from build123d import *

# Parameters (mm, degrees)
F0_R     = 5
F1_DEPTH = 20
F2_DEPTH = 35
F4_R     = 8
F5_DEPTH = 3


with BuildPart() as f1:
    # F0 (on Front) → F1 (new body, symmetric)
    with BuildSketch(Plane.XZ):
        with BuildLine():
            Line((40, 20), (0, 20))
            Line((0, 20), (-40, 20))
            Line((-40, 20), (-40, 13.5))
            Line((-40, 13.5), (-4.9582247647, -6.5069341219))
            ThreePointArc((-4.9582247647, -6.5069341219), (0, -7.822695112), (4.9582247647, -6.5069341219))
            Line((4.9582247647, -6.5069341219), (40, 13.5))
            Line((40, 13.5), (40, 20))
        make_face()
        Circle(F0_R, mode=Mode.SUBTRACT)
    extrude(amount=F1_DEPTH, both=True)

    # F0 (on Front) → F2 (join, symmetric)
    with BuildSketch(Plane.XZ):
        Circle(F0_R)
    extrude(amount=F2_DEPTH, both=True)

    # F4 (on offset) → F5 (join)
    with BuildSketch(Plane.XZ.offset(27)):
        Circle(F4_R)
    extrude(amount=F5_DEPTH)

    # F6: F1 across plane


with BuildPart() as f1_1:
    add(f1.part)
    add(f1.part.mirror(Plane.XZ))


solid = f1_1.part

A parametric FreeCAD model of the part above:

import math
import FreeCAD as App
import Part
import Sketcher

V = App.Vector
Q = App.Units.Quantity

doc = App.newDocument("Part")
body = doc.addObject("PartDesign::Body", "Body")

sketch1 = body.newObject("Sketcher::SketchObject", "Sketch")
sketch1.AttachmentSupport = (doc.getObject("XZ_Plane"), [""])
sketch1.MapMode = "FlatFace"
sketch1.addGeometry(Part.LineSegment(V(40, 20, 0), V(-40, 20, 0)), False)
sketch1.addGeometry(Part.LineSegment(V(-40, 20, 0), V(-40, 13.5, 0)), False)
sketch1.addGeometry(Part.LineSegment(V(-40, 13.5, 0), V(-4.958225, -6.506934, 0)), False)
sketch1.addGeometry(Part.ArcOfCircle(Part.Circle(V(0, 2.177305, 0), V(0, 0, 1), 10), math.radians(-119.724), math.radians(-60.276)), False)
sketch1.addGeometry(Part.LineSegment(V(4.958225, -6.506934, 0), V(40, 13.5, 0)), False)
sketch1.addGeometry(Part.LineSegment(V(40, 13.5, 0), V(40, 20, 0)), False)
sketch1.addGeometry(Part.Circle(V(0, 0, 0), V(0, 0, 1), 5), False)
sketch1.addConstraint(Sketcher.Constraint("Coincident", 0, 2, 1, 1))
sketch1.addConstraint(Sketcher.Constraint("Coincident", 1, 2, 2, 1))
sketch1.addConstraint(Sketcher.Constraint("Tangent", 2, 2, 3, 1))
sketch1.addConstraint(Sketcher.Constraint("Tangent", 3, 2, 4, 1))
sketch1.addConstraint(Sketcher.Constraint("Coincident", 4, 2, 5, 1))
sketch1.addConstraint(Sketcher.Constraint("Coincident", 5, 2, 0, 1))
sketch1.addConstraint(Sketcher.Constraint("Horizontal", 0))
sketch1.addConstraint(Sketcher.Constraint("Vertical", 1))
sketch1.addConstraint(Sketcher.Constraint("Vertical", 5))
sketch1.addConstraint(Sketcher.Constraint("Coincident", 6, 3, -1, 1))
sketch1.addConstraint(Sketcher.Constraint("Symmetric", 2, 2, 3, 2, -2))
sketch1.addConstraint(Sketcher.Constraint("Horizontal", 1, 2, 4, 2))
sketch1.addConstraint(Sketcher.Constraint("Diameter", 6, Q("10 mm")))
sketch1.addConstraint(Sketcher.Constraint("Radius", 3, Q("10 mm")))
sketch1.addConstraint(Sketcher.Constraint("DistanceX", 0, 2, 0, 1, Q("80 mm")))
sketch1.addConstraint(Sketcher.Constraint("DistanceY", 1, 2, 1, 1, Q("6.5 mm")))
sketch1.addConstraint(Sketcher.Constraint("DistanceY", -1, 1, 0, 2, Q("20 mm")))
sketch1.addConstraint(Sketcher.Constraint("DistanceY", 2, 2, 3, 3, Q("8.684239 mm")))
pad1 = body.newObject("PartDesign::Pad", "Pad")
pad1.Profile = sketch1
pad1.Length = 40
pad1.Midplane = True

sketch2 = body.newObject("Sketcher::SketchObject", "Sketch001")
sketch2.AttachmentSupport = (doc.getObject("XZ_Plane"), [""])
sketch2.MapMode = "FlatFace"
sketch2.addGeometry(Part.Circle(V(0, 0, 0), V(0, 0, 1), 5), False)
sketch2.addConstraint(Sketcher.Constraint("Coincident", 0, 3, -1, 1))
sketch2.addConstraint(Sketcher.Constraint("Diameter", 0, Q("10 mm")))
pad2 = body.newObject("PartDesign::Pad", "Pad001")
pad2.Profile = sketch2
pad2.Length = 70
pad2.Midplane = True

sketch3 = body.newObject("Sketcher::SketchObject", "Sketch002")
sketch3.AttachmentSupport = (doc.getObject("XZ_Plane"), [""])
sketch3.MapMode = "FlatFace"
sketch3.AttachmentOffset = App.Placement(V(0, 0, 27), App.Rotation())
sketch3.addGeometry(Part.Circle(V(0, 0, 0), V(0, 0, 1), 8), False)
sketch3.addConstraint(Sketcher.Constraint("Coincident", 0, 3, -1, 1))
sketch3.addConstraint(Sketcher.Constraint("Diameter", 0, Q("16 mm")))
pad3 = body.newObject("PartDesign::Pad", "Pad002")
pad3.Profile = sketch3
pad3.Length = 3
body2 = doc.addObject("PartDesign::Body", "Body001")
doc.recompute()

body2.BaseFeature = body
doc.recompute()

mirroring = doc.addObject("Part::Mirroring", "Mirroring")
mirroring.Source = body
mirroring.Base = V(0, 0, 0)
mirroring.Normal = V(0, -1, 0)
body3 = doc.addObject("PartDesign::Body", "Body002")
body3.BaseFeature = mirroring
boolean = body2.newObject("PartDesign::Boolean", "Boolean")
boolean.Type = "Fuse"
boolean.addObjects([body3])
doc.recompute()
mirroring.Visibility = False

doc.recompute()
